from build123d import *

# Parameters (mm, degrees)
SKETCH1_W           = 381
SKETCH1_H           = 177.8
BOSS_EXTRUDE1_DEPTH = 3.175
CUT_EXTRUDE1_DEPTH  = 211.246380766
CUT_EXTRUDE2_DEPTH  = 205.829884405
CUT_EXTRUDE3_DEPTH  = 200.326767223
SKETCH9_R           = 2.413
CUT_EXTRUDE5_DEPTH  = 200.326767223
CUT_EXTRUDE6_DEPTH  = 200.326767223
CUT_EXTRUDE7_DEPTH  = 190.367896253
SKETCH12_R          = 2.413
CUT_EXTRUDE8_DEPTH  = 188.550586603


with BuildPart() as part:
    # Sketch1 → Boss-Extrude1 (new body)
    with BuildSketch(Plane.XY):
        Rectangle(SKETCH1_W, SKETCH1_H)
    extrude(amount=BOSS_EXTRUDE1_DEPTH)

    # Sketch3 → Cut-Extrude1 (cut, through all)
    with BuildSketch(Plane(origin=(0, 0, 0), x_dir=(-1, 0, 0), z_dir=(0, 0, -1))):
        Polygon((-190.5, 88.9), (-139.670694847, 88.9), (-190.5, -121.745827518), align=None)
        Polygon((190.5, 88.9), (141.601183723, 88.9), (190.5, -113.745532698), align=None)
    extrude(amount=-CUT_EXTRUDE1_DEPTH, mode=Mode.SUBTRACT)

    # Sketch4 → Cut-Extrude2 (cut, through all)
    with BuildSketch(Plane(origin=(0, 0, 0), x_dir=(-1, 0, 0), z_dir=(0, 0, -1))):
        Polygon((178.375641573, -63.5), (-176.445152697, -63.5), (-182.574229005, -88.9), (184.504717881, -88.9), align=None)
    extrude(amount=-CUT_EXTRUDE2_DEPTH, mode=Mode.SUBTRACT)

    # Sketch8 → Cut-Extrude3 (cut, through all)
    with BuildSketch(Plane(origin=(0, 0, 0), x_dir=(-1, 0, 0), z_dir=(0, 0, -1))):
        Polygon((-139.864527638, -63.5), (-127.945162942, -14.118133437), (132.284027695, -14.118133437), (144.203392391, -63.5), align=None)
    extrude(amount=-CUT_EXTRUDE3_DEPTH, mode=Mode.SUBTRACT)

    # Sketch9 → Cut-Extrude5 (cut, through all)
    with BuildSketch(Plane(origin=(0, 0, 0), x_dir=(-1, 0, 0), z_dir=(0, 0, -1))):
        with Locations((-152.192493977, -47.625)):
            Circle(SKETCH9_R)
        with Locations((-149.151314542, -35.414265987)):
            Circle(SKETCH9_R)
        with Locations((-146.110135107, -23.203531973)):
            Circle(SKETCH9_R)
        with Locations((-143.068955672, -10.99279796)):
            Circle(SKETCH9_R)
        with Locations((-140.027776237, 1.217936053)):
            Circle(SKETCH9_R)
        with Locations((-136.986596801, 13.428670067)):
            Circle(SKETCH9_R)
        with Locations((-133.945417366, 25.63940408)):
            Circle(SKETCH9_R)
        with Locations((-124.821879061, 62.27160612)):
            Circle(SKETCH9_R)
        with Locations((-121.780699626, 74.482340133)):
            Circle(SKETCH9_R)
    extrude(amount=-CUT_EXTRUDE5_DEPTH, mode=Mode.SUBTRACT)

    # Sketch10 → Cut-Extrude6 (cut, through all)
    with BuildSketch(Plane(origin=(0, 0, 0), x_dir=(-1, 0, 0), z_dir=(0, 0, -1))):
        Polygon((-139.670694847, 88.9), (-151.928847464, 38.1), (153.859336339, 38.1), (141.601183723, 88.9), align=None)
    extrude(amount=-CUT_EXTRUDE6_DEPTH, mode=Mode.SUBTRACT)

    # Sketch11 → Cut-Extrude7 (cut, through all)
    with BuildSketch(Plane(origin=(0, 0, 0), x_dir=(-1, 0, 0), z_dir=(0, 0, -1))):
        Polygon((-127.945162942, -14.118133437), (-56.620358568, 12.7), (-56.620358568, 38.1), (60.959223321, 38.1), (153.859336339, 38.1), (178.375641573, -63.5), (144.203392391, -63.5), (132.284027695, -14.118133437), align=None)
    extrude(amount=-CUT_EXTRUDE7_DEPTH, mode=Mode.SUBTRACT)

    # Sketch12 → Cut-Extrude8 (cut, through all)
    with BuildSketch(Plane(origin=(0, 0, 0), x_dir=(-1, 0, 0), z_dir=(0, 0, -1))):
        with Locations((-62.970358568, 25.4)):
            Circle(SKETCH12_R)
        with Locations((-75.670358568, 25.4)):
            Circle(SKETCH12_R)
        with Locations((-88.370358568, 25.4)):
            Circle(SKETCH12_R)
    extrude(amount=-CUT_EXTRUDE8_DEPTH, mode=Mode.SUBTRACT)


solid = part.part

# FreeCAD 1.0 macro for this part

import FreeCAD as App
import Part
import Sketcher
Q = App.Units.Quantity

doc = App.newDocument("Part")
body = doc.addObject("PartDesign::Body", "Body")

# Sketch on XY plane
sketch1 = doc.addObject("Sketcher::SketchObject", "Sketch")
body.addObject(sketch1)
sketch1.AttachmentSupport = (doc.XY_Plane, [""])
sketch1.MapMode = "FlatFace"
sketch1.addGeometry(Part.LineSegment(App.Vector(-190, 89, 0), App.Vector(-190, -89, 0)), False)
sketch1.addGeometry(Part.LineSegment(App.Vector(-190, -89, 0), App.Vector(190, -89, 0)), False)
sketch1.addGeometry(Part.LineSegment(App.Vector(190, -89, 0), App.Vector(190, 89, 0)), False)
sketch1.addGeometry(Part.LineSegment(App.Vector(190, 89, 0), App.Vector(-190, 89, 0)), False)
sketch1.addConstraint(Sketcher.Constraint("Coincident", 0, 2, 1, 1))
sketch1.addConstraint(Sketcher.Constraint("Coincident", 1, 2, 2, 1))
sketch1.addConstraint(Sketcher.Constraint("Coincident", 2, 2, 3, 1))
sketch1.addConstraint(Sketcher.Constraint("Coincident", 3, 2, 0, 1))
sketch1.addConstraint(Sketcher.Constraint("Vertical", 0))
sketch1.addConstraint(Sketcher.Constraint("Horizontal", 1))
sketch1.addConstraint(Sketcher.Constraint("Vertical", 2))
sketch1.addConstraint(Sketcher.Constraint("Horizontal", 3))
sketch1.addConstraint(Sketcher.Constraint("Symmetric", 0, 2, 2, 2, -1, 1))
sketch1.addConstraint(Sketcher.Constraint("DistanceX", 1, 1, 1, 2, Q("15 in")))
sketch1.addConstraint(Sketcher.Constraint("DistanceY", 0, 2, 0, 1, Q("7 in")))
pad1 = doc.addObject("PartDesign::Pad", "Pad")
body.addObject(pad1)
pad1.Profile = sketch1
pad1.Length = Q("0.125 in")

# Sketch on XY plane
sketch2 = doc.addObject("Sketcher::SketchObject", "Sketch001")
body.addObject(sketch2)
sketch2.AttachmentSupport = (doc.XY_Plane, [""])
sketch2.MapMode = "FlatFace"
sketch2.addGeometry(Part.LineSegment(App.Vector(140, 89, 0), App.Vector(190, 89, 0)), False)
sketch2.addGeometry(Part.LineSegment(App.Vector(190, 89, 0), App.Vector(190, -122, 0)), False)
sketch2.addGeometry(Part.LineSegment(App.Vector(190, -122, 0), App.Vector(140, 89, 0)), False)
sketch2.addGeometry(Part.LineSegment(App.Vector(-190, 89, 0), App.Vector(-142, 89, 0)), False)
sketch2.addGeometry(Part.LineSegment(App.Vector(-142, 89, 0), App.Vector(-190, -114, 0)), False)
sketch2.addGeometry(Part.LineSegment(App.Vector(-190, -114, 0), App.Vector(-190, 89, 0)), False)
sketch2.addConstraint(Sketcher.Constraint("Coincident", 0, 2, 1, 1))
sketch2.addConstraint(Sketcher.Constraint("Coincident", 1, 2, 2, 1))
sketch2.addConstraint(Sketcher.Constraint("Coincident", 2, 2, 0, 1))
sketch2.addConstraint(Sketcher.Constraint("Coincident", 3, 2, 4, 1))
sketch2.addConstraint(Sketcher.Constraint("Coincident", 4, 2, 5, 1))
sketch2.addConstraint(Sketcher.Constraint("Coincident", 5, 2, 3, 1))
sketch2.addConstraint(Sketcher.Constraint("Horizontal", 0))
sketch2.addConstraint(Sketcher.Constraint("Vertical", 1))
sketch2.addConstraint(Sketcher.Constraint("Horizontal", 3))
sketch2.addConstraint(Sketcher.Constraint("Vertical", 5))
sketch2.addConstraint(Sketcher.Constraint("Symmetric", 0, 2, 5, 2, -2))
sketch2.addConstraint(Sketcher.Constraint("DistanceX", 4, 2, 1, 2, Q("15 in")))
sketch2.addConstraint(Sketcher.Constraint("DistanceY", -1, 1, 0, 2, Q("3.5 in")))
sketch2.addConstraint(Sketcher.Constraint("Distance", 4, 208.461762))
sketch2.addConstraint(Sketcher.Constraint("DistanceX", 0, 1, 0, 2, 50.829305))
sketch2.addConstraint(Sketcher.Constraint("DistanceX", 3, 1, 3, 2, 48.898816))
sketch2.addConstraint(Sketcher.Constraint("DistanceY", 1, 2, 1, 1, 210.645828))
pocket1 = doc.addObject("PartDesign::Pocket", "Pocket")
body.addObject(pocket1)
pocket1.Profile = sketch2
pocket1.Type = "ThroughAll"
pocket1.Reversed = True

# Sketch on XY plane
sketch3 = doc.addObject("Sketcher::SketchObject", "Sketch002")
body.addObject(sketch3)
sketch3.AttachmentSupport = (doc.XY_Plane, [""])
sketch3.MapMode = "FlatFace"
sketch3.addGeometry(Part.LineSegment(App.Vector(-178, -64, 0), App.Vector(176, -64, 0)), False)
sketch3.addGeometry(Part.LineSegment(App.Vector(176, -64, 0), App.Vector(183, -89, 0)), False)
sketch3.addGeometry(Part.LineSegment(App.Vector(183, -89, 0), App.Vector(-185, -89, 0)), False)
sketch3.addGeometry(Part.LineSegment(App.Vector(-185, -89, 0), App.Vector(-178, -64, 0)), False)
sketch3.addConstraint(Sketcher.Constraint("Coincident", 0, 2, 1, 1))
sketch3.addConstraint(Sketcher.Constraint("Coincident", 1, 2, 2, 1))
sketch3.addConstraint(Sketcher.Constraint("Coincident", 2, 2, 3, 1))
sketch3.addConstraint(Sketcher.Constraint("Coincident", 3, 2, 0, 1))
sketch3.addConstraint(Sketcher.Constraint("Horizontal", 0))
sketch3.addConstraint(Sketcher.Constraint("Horizontal", 2))
sketch3.addConstraint(Sketcher.Constraint("Equal", 1, 3))
sketch3.addConstraint(Sketcher.Constraint("DistanceY", 1, 2, 0, 2, Q("1 in")))
sketch3.addConstraint(Sketcher.Constraint("DistanceY", 0, 2, -1, 1, Q("2.5 in")))
sketch3.addConstraint(Sketcher.Constraint("DistanceX", 0, 1, 0, 2, 354.820794))
sketch3.addConstraint(Sketcher.Constraint("DistanceX", 2, 2, 2, 1, 367.078947))
sketch3.addConstraint(Sketcher.Constraint("DistanceX", -1, 1, 1, 2, 182.574229))
pocket2 = doc.addObject("PartDesign::Pocket", "Pocket001")
body.addObject(pocket2)
pocket2.Profile = sketch3
pocket2.Type = "ThroughAll"
pocket2.Reversed = True

# Sketch on XY plane
sketch4 = doc.addObject("Sketcher::SketchObject", "Sketch003")
body.addObject(sketch4)
sketch4.AttachmentSupport = (doc.XY_Plane, [""])
sketch4.MapMode = "FlatFace"
sketch4.addGeometry(Part.LineSegment(App.Vector(128, -14, 0), App.Vector(140, -64, 0)), False)
sketch4.addGeometry(Part.LineSegment(App.Vector(140, -64, 0), App.Vector(-144, -64, 0)), False)
sketch4.addGeometry(Part.LineSegment(App.Vector(-144, -64, 0), App.Vector(-132, -14, 0)), False)
sketch4.addGeometry(Part.LineSegment(App.Vector(-132, -14, 0), App.Vector(128, -14, 0)), False)
sketch4.addConstraint(Sketcher.Constraint("Coincident", 0, 2, 1, 1))
sketch4.addConstraint(Sketcher.Constraint("Coincident", 1, 2, 2, 1))
sketch4.addConstraint(Sketcher.Constraint("Coincident", 2, 2, 3, 1))
sketch4.addConstraint(Sketcher.Constraint("Coincident", 3, 2, 0, 1))
sketch4.addConstraint(Sketcher.Constraint("Horizontal", 1))
sketch4.addConstraint(Sketcher.Constraint("Horizontal", 3))
sketch4.addConstraint(Sketcher.Constraint("Equal", 0, 2))
sketch4.addConstraint(Sketcher.Constraint("Distance", 0, Q("2 in")))
sketch4.addConstraint(Sketcher.Constraint("DistanceY", 0, 2, -1, 1, Q("2.5 in")))
sketch4.addConstraint(Sketcher.Constraint("Angle", 0, Q("-76.43 deg")))
sketch4.addConstraint(Sketcher.Constraint("DistanceX", 1, 2, 1, 1, 284.06792))
sketch4.addConstraint(Sketcher.Constraint("DistanceX", -1, 1, 0, 2, 139.864528))
pocket3 = doc.addObject("PartDesign::Pocket", "Pocket002")
body.addObject(pocket3)
pocket3.Profile = sketch4
pocket3.Type = "ThroughAll"
pocket3.Reversed = True

# Sketch on XY plane
sketch5 = doc.addObject("Sketcher::SketchObject", "Sketch004")
body.addObject(sketch5)
sketch5.AttachmentSupport = (doc.XY_Plane, [""])
sketch5.MapMode = "FlatFace"
sketch5.addGeometry(Part.Circle(App.Vector(152.2, -47.6, 0), App.Vector(0, 0, 1), 2.4), False)
sketch5.addGeometry(Part.Circle(App.Vector(149.2, -35.4, 0), App.Vector(0, 0, 1), 2.4), False)
sketch5.addGeometry(Part.Circle(App.Vector(146.1, -23.2, 0), App.Vector(0, 0, 1), 2.4), False)
sketch5.addGeometry(Part.Circle(App.Vector(143.1, -11, 0), App.Vector(0, 0, 1), 2.4), False)
sketch5.addGeometry(Part.Circle(App.Vector(140, 1.2, 0), App.Vector(0, 0, 1), 2.4), False)
sketch5.addGeometry(Part.Circle(App.Vector(137, 13.4, 0), App.Vector(0, 0, 1), 2.4), False)
sketch5.addGeometry(Part.Circle(App.Vector(133.9, 25.6, 0), App.Vector(0, 0, 1), 2.4), False)
sketch5.addGeometry(Part.Circle(App.Vector(124.8, 62.3, 0), App.Vector(0, 0, 1), 2.4), False)
sketch5.addGeometry(Part.Circle(App.Vector(121.8, 74.5, 0), App.Vector(0, 0, 1), 2.4), False)
sketch5.addConstraint(Sketcher.Constraint("Equal", 0, 1))
sketch5.addConstraint(Sketcher.Constraint("Equal", 1, 2))
sketch5.addConstraint(Sketcher.Constraint("Equal", 2, 3))
sketch5.addConstraint(Sketcher.Constraint("Equal", 3, 4))
sketch5.addConstraint(Sketcher.Constraint("Equal", 4, 5))
sketch5.addConstraint(Sketcher.Constraint("Equal", 5, 6))
sketch5.addConstraint(Sketcher.Constraint("Equal", 6, 7))
sketch5.addConstraint(Sketcher.Constraint("Equal", 7, 8))
sketch5.addConstraint(Sketcher.Constraint("Diameter", 0, Q("0.19 in")))
sketch5.addConstraint(Sketcher.Constraint("DistanceY", 0, 3, -1, 1, Q("1.875 in")))
sketch5.addConstraint(Sketcher.Constraint("DistanceX", -1, 1, 8, 3, 121.7807))
sketch5.addConstraint(Sketcher.Constraint("DistanceY", 2, 3, -1, 1, 23.203532))
sketch5.addConstraint(Sketcher.Constraint("DistanceY", -1, 1, 5, 3, 13.42867))
sketch5.addConstraint(Sketcher.Constraint("DistanceX", -1, 1, 7, 3, 124.821879))
sketch5.addConstraint(Sketcher.Constraint("DistanceY", -1, 1, 8, 3, 74.48234))
sketch5.addConstraint(Sketcher.Constraint("DistanceX", 1, 3, 0, 3, 3.041179))
sketch5.addConstraint(Sketcher.Constraint("DistanceX", 2, 3, 1, 3, 3.041179))
sketch5.addConstraint(Sketcher.Constraint("DistanceX", 3, 3, 2, 3, 3.041179))
sketch5.addConstraint(Sketcher.Constraint("DistanceY", 1, 3, 3, 3, 24.421468))
sketch5.addConstraint(Sketcher.Constraint("DistanceX", 4, 3, 3, 3, 3.041179))
sketch5.addConstraint(Sketcher.Constraint("DistanceY", 2, 3, 4, 3, 24.421468))
sketch5.addConstraint(Sketcher.Constraint("DistanceX", 5, 3, 4, 3, 3.041179))
sketch5.addConstraint(Sketcher.Constraint("DistanceY", 3, 3, 5, 3, 24.421468))
sketch5.addConstraint(Sketcher.Constraint("DistanceX", 6, 3, 5, 3, 3.041179))
sketch5.addConstraint(Sketcher.Constraint("DistanceY", 4, 3, 6, 3, 24.421468))
sketch5.addConstraint(Sketcher.Constraint("DistanceX", 7, 3, 6, 3, 9.123538))
sketch5.addConstraint(Sketcher.Constraint("DistanceY", 4, 3, 7, 3, 61.05367))
pocket4 = doc.addObject("PartDesign::Pocket", "Pocket003")
body.addObject(pocket4)
pocket4.Profile = sketch5
pocket4.Type = "ThroughAll"
pocket4.Reversed = True

# Sketch on XY plane
sketch6 = doc.addObject("Sketcher::SketchObject", "Sketch005")
body.addObject(sketch6)
sketch6.AttachmentSupport = (doc.XY_Plane, [""])
sketch6.MapMode = "FlatFace"
sketch6.addGeometry(Part.LineSegment(App.Vector(139.670695, 88.9, 0), App.Vector(151.928847, 38.1, 0)), False)
sketch6.addGeometry(Part.LineSegment(App.Vector(151.928847, 38.1, 0), App.Vector(-153.859336, 38.1, 0)), False)
sketch6.addGeometry(Part.LineSegment(App.Vector(-153.859336, 38.1, 0), App.Vector(-141.601184, 88.9, 0)), False)
sketch6.addGeometry(Part.LineSegment(App.Vector(-141.601184, 88.9, 0), App.Vector(139.670695, 88.9, 0)), False)
sketch6.addConstraint(Sketcher.Constraint("Coincident", 0, 2, 1, 1))
sketch6.addConstraint(Sketcher.Constraint("Coincident", 1, 2, 2, 1))
sketch6.addConstraint(Sketcher.Constraint("Coincident", 2, 2, 3, 1))
sketch6.addConstraint(Sketcher.Constraint("Coincident", 3, 2, 0, 1))
sketch6.addConstraint(Sketcher.Constraint("Horizontal", 1))
sketch6.addConstraint(Sketcher.Constraint("Horizontal", 3))
sketch6.addConstraint(Sketcher.Constraint("Equal", 0, 2))
sketch6.addConstraint(Sketcher.Constraint("DistanceY", 1, 2, 2, 2, Q("2 in")))
sketch6.addConstraint(Sketcher.Constraint("DistanceY", -1, 1, 0, 2, Q("1.5 in")))
sketch6.addConstraint(Sketcher.Constraint("DistanceX", 3, 1, 3, 2, 281.271879))
sketch6.addConstraint(Sketcher.Constraint("DistanceX", 1, 2, 1, 1, 305.788184))
sketch6.addConstraint(Sketcher.Constraint("DistanceX", -1, 1, 0, 2, 151.928847))
pocket5 = doc.addObject("PartDesign::Pocket", "Pocket004")
body.addObject(pocket5)
pocket5.Profile = sketch6
pocket5.Type = "ThroughAll"
pocket5.Reversed = True

# Sketch on XY plane
sketch7 = doc.addObject("Sketcher::SketchObject", "Sketch006")
body.addObject(sketch7)
sketch7.AttachmentSupport = (doc.XY_Plane, [""])
sketch7.MapMode = "FlatFace"
sketch7.addGeometry(Part.LineSegment(App.Vector(57, 13, 0), App.Vector(128, -14, 0)), False)
sketch7.addGeometry(Part.LineSegment(App.Vector(128, -14, 0), App.Vector(-132, -14, 0)), False)
sketch7.addGeometry(Part.LineSegment(App.Vector(-132, -14, 0), App.Vector(-144, -64, 0)), False)
sketch7.addGeometry(Part.LineSegment(App.Vector(-144, -64, 0), App.Vector(-178, -64, 0)), False)
sketch7.addGeometry(Part.LineSegment(App.Vector(-178, -64, 0), App.Vector(-154, 38, 0)), False)
sketch7.addGeometry(Part.LineSegment(App.Vector(-154, 38, 0), App.Vector(57, 38, 0)), False)
sketch7.addGeometry(Part.LineSegment(App.Vector(57, 38, 0), App.Vector(57, 13, 0)), False)
sketch7.addConstraint(Sketcher.Constraint("Coincident", 0, 2, 1, 1))
sketch7.addConstraint(Sketcher.Constraint("Coincident", 1, 2, 2, 1))
sketch7.addConstraint(Sketcher.Constraint("Coincident", 2, 2, 3, 1))
sketch7.addConstraint(Sketcher.Constraint("Coincident", 3, 2, 4, 1))
sketch7.addConstraint(Sketcher.Constraint("Coincident", 4, 2, 5, 1))
sketch7.addConstraint(Sketcher.Constraint("Coincident", 5, 2, 6, 1))
sketch7.addConstraint(Sketcher.Constraint("Coincident", 6, 2, 0, 1))
sketch7.addConstraint(Sketcher.Constraint("Horizontal", 1))
sketch7.addConstraint(Sketcher.Constraint("Horizontal", 3))
sketch7.addConstraint(Sketcher.Constraint("Horizontal", 5))
sketch7.addConstraint(Sketcher.Constraint("Vertical", 6))
sketch7.addConstraint(Sketcher.Constraint("DistanceY", 6, 2, 6, 1, Q("1 in")))
sketch7.addConstraint(Sketcher.Constraint("Distance", 0, Q("3 in")))
sketch7.addConstraint(Sketcher.Constraint("Distance", 2, Q("2 in")))
sketch7.addConstraint(Sketcher.Constraint("DistanceY", 2, 2, 4, 2, Q("4 in")))
sketch7.addConstraint(Sketcher.Constraint("DistanceY", 2, 2, -1, 1, Q("2.5 in")))
sketch7.addConstraint(Sketcher.Constraint("Angle", 2, Q("-103.57 deg")))
sketch7.addConstraint(Sketcher.Constraint("DistanceX", 1, 2, 1, 1, 260.229191))
sketch7.addConstraint(Sketcher.Constraint("DistanceX", 3, 2, 3, 1, 34.172249))
sketch7.addConstraint(Sketcher.Constraint("DistanceX", 4, 2, 0, 2, 281.804499))
sketch7.addConstraint(Sketcher.Constraint("DistanceX", 3, 2, -1, 1, 178.375642))
pocket6 = doc.addObject("PartDesign::Pocket", "Pocket005")
body.addObject(pocket6)
pocket6.Profile = sketch7
pocket6.Type = "ThroughAll"
pocket6.Reversed = True

# Sketch on XY plane
sketch8 = doc.addObject("Sketcher::SketchObject", "Sketch007")
body.addObject(sketch8)
sketch8.AttachmentSupport = (doc.XY_Plane, [""])
sketch8.MapMode = "FlatFace"
sketch8.addGeometry(Part.Circle(App.Vector(63, 25.4, 0), App.Vector(0, 0, 1), 2.4), False)
sketch8.addGeometry(Part.Circle(App.Vector(75.7, 25.4, 0), App.Vector(0, 0, 1), 2.4), False)
sketch8.addGeometry(Part.Circle(App.Vector(88.4, 25.4, 0), App.Vector(0, 0, 1), 2.4), False)
sketch8.addConstraint(Sketcher.Constraint("Equal", 0, 1))
sketch8.addConstraint(Sketcher.Constraint("Equal", 1, 2))
sketch8.addConstraint(Sketcher.Constraint("Horizontal", 0, 3, 1, 3))
sketch8.addConstraint(Sketcher.Constraint("Horizontal", 1, 3, 2, 3))
sketch8.addConstraint(Sketcher.Constraint("Diameter", 0, Q("0.19 in")))
sketch8.addConstraint(Sketcher.Constraint("DistanceY", -1, 1, 0, 3, Q("1 in")))
sketch8.addConstraint(Sketcher.Constraint("DistanceX", 0, 3, 2, 3, Q("1 in")))
sketch8.addConstraint(Sketcher.Constraint("DistanceX", 0, 3, 1, 3, Q("0.5 in")))
sketch8.addConstraint(Sketcher.Constraint("DistanceX", -1, 1, 0, 3, 62.970359))
pocket7 = doc.addObject("PartDesign::Pocket", "Pocket006")
body.addObject(pocket7)
pocket7.Profile = sketch8
pocket7.Type = "ThroughAll"
pocket7.Reversed = True

doc.recompute()
